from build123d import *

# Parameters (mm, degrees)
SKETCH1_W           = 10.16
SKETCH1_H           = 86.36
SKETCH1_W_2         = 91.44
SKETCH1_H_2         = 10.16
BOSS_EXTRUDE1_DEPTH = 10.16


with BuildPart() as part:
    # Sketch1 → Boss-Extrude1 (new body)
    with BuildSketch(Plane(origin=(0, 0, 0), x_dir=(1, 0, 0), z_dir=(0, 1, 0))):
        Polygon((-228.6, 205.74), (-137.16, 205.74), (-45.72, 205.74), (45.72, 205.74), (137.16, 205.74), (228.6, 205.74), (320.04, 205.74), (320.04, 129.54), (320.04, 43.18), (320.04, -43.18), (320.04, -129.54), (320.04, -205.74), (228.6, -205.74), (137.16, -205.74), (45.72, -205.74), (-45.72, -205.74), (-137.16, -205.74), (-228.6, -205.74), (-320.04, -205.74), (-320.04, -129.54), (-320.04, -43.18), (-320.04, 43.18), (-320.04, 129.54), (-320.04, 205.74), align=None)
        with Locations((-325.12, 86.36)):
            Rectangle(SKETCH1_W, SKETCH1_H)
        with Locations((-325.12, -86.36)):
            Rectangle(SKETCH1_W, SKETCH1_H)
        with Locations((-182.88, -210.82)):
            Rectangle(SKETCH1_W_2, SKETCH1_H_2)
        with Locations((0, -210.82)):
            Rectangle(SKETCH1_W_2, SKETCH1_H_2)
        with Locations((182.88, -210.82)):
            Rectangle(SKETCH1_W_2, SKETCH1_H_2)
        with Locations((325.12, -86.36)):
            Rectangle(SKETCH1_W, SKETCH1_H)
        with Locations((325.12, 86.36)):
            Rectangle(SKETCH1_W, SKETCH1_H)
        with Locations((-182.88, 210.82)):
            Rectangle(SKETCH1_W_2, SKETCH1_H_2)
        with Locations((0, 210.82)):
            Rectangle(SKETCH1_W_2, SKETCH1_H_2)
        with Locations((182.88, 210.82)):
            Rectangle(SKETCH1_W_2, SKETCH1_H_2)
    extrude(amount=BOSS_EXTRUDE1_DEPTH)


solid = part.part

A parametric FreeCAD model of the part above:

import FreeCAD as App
import Part
import Sketcher
from FreeCAD import Vector
Q = App.Units.Quantity


def add_polygon(sketch, points):
    """Adds a closed chain of lines whose ends are joined by coincident constraints."""
    first, n = sketch.GeometryCount, len(points)
    for a, b in zip(points, points[1:] + points[:1]):
        sketch.addGeometry(Part.LineSegment(App.Vector(*a, 0), App.Vector(*b, 0)), False)
    for i in range(n):
        sketch.addConstraint(Sketcher.Constraint("Coincident", first + i, 2, first + (i + 1) % n, 1))

doc = App.newDocument("Part")
params = doc.addObject("Spreadsheet::Sheet", "Params")
for row, (alias, value) in enumerate([
    ("sketch1_height", "3 in"),
    ("sketch1_width", "3.6 in"),
    ("sketch1_width2", "0.4 in"),
    ("sketch1_height2", "3.4 in"),
    ("pad1_length", "0.4 in"),
], start=1):
    params.set(f"A{row}", alias)
    params.set(f"B{row}", "=" + value)
    params.setAlias(f"B{row}", alias)

body = doc.addObject("PartDesign::Body", "Body")

sketch1 = doc.addObject("Sketcher::SketchObject", "Sketch")
body.addObject(sketch1)
sketch1.AttachmentSupport = (doc.XZ_Plane, [""])
sketch1.MapMode = "FlatFace"
add_polygon(sketch1, [(320, -206), (229, -206), (229, -216), (137, -216), (137, -206), (46, -206), (46, -216), (-46, -216), (-46, -206), (-137, -206), (-137, -216), (-229, -216), (-229, -206), (-320, -206), (-320, -130), (-330, -130), (-330, -43), (-320, -43), (-320, 43), (-330, 43), (-330, 130), (-320, 130), (-320, 206), (-229, 206), (-229, 216), (-137, 216), (-137, 206), (-46, 206), (-46, 216), (46, 216), (46, 206), (137, 206), (137, 216), (229, 216), (229, 206), (320, 206), (320, 130), (330, 130), (330, 43), (320, 43), (320, -43), (330, -43), (330, -130), (320, -130)])
sketch1.addConstraint([
    Sketcher.Constraint("Horizontal", 0),
    Sketcher.Constraint("Vertical", 1),
    Sketcher.Constraint("Horizontal", 2),
    Sketcher.Constraint("Vertical", 3),
    Sketcher.Constraint("Horizontal", 4),
    Sketcher.Constraint("Vertical", 5),
    Sketcher.Constraint("Horizontal", 6),
    Sketcher.Constraint("Vertical", 7),
    Sketcher.Constraint("Horizontal", 8),
    Sketcher.Constraint("Vertical", 9),
    Sketcher.Constraint("Horizontal", 10),
    Sketcher.Constraint("Vertical", 11),
    Sketcher.Constraint("Horizontal", 12),
    Sketcher.Constraint("Vertical", 13),
    Sketcher.Constraint("Horizontal", 14),
    Sketcher.Constraint("Vertical", 15),
    Sketcher.Constraint("Horizontal", 16),
    Sketcher.Constraint("Vertical", 17),
    Sketcher.Constraint("Horizontal", 18),
    Sketcher.Constraint("Vertical", 19),
    Sketcher.Constraint("Horizontal", 20),
    Sketcher.Constraint("Vertical", 21),
    Sketcher.Constraint("Horizontal", 22),
    Sketcher.Constraint("Vertical", 23),
    Sketcher.Constraint("Horizontal", 24),
    Sketcher.Constraint("Vertical", 25),
    Sketcher.Constraint("Horizontal", 26),
    Sketcher.Constraint("Vertical", 27),
    Sketcher.Constraint("Horizontal", 28),
    Sketcher.Constraint("Vertical", 29),
    Sketcher.Constraint("Horizontal", 30),
    Sketcher.Constraint("Vertical", 31),
    Sketcher.Constraint("Horizontal", 32),
    Sketcher.Constraint("Vertical", 33),
    Sketcher.Constraint("Horizontal", 34),
    Sketcher.Constraint("Vertical", 35),
    Sketcher.Constraint("Horizontal", 36),
    Sketcher.Constraint("Vertical", 37),
    Sketcher.Constraint("Horizontal", 38),
    Sketcher.Constraint("Vertical", 39),
    Sketcher.Constraint("Horizontal", 40),
    Sketcher.Constraint("Vertical", 41),
    Sketcher.Constraint("Horizontal", 42),
    Sketcher.Constraint("Vertical", 43),
    Sketcher.Constraint("Symmetric", 0, 2, 22, 2, -1, 1),
    Sketcher.Constraint("Symmetric", 2, 2, 24, 2, -1, 1),
    Sketcher.Constraint("Symmetric", 4, 2, 26, 2, -1, 1),
    Sketcher.Constraint("Symmetric", 6, 2, 28, 2, -1, 1),
    Sketcher.Constraint("Symmetric", 8, 2, 30, 2, -1, 1),
    Sketcher.Constraint("Symmetric", 10, 2, 32, 2, -1, 1),
    Sketcher.Constraint("Symmetric", 12, 2, 34, 2, -1, 1),
    Sketcher.Constraint("Symmetric", 14, 2, 36, 2, -1, 1),
    Sketcher.Constraint("Symmetric", 16, 2, 38, 2, -1, 1),
    Sketcher.Constraint("Symmetric", 18, 2, 40, 2, -1, 1),
    Sketcher.Constraint("Symmetric", 20, 2, 42, 2, -1, 1),
    Sketcher.Constraint("Symmetric", 4, 2, 7, 2, -2),
    Sketcher.Constraint("Symmetric", 2, 2, 9, 2, -2),
    Sketcher.Constraint("Symmetric", 0, 2, 11, 2, -2),
    Sketcher.Constraint("Symmetric", 20, 2, 35, 2, -2),
    Sketcher.Constraint("Symmetric", 18, 2, 37, 2, -2),
    Sketcher.Constraint("Horizontal", 0, 2, 3, 2),
    Sketcher.Constraint("Horizontal", 2, 2, 5, 2),
    Sketcher.Constraint("Vertical", 13, 2, 16, 2),
    Sketcher.Constraint("Equal", 0, 2),
    Sketcher.Constraint("Equal", 2, 4),
    Sketcher.Constraint("Equal", 4, 6),
    Sketcher.Constraint("Equal", 42, 1),
    Sketcher.Constraint("Equal", 15, 17),
    Sketcher.Constraint("DistanceY", 13, 1, 13, 2, Q("3 in")),
    Sketcher.Constraint("DistanceX", 0, 2, 0, 1, Q("3.6 in")),
    Sketcher.Constraint("DistanceX", 14, 2, 14, 1, Q("0.4 in")),
    Sketcher.Constraint("DistanceY", 15, 1, 15, 2, Q("3.4 in")),
])
sketch1.setExpression("Constraints[112]", "Params.sketch1_height")
sketch1.setExpression("Constraints[113]", "Params.sketch1_width")
sketch1.setExpression("Constraints[114]", "Params.sketch1_width2")
sketch1.setExpression("Constraints[115]", "Params.sketch1_height2")
pad1 = doc.addObject("PartDesign::Pad", "Pad")
body.addObject(pad1)
pad1.Profile = sketch1
pad1.setExpression("Length", "Params.pad1_length")
pad1.Reversed = True

doc.recompute()
